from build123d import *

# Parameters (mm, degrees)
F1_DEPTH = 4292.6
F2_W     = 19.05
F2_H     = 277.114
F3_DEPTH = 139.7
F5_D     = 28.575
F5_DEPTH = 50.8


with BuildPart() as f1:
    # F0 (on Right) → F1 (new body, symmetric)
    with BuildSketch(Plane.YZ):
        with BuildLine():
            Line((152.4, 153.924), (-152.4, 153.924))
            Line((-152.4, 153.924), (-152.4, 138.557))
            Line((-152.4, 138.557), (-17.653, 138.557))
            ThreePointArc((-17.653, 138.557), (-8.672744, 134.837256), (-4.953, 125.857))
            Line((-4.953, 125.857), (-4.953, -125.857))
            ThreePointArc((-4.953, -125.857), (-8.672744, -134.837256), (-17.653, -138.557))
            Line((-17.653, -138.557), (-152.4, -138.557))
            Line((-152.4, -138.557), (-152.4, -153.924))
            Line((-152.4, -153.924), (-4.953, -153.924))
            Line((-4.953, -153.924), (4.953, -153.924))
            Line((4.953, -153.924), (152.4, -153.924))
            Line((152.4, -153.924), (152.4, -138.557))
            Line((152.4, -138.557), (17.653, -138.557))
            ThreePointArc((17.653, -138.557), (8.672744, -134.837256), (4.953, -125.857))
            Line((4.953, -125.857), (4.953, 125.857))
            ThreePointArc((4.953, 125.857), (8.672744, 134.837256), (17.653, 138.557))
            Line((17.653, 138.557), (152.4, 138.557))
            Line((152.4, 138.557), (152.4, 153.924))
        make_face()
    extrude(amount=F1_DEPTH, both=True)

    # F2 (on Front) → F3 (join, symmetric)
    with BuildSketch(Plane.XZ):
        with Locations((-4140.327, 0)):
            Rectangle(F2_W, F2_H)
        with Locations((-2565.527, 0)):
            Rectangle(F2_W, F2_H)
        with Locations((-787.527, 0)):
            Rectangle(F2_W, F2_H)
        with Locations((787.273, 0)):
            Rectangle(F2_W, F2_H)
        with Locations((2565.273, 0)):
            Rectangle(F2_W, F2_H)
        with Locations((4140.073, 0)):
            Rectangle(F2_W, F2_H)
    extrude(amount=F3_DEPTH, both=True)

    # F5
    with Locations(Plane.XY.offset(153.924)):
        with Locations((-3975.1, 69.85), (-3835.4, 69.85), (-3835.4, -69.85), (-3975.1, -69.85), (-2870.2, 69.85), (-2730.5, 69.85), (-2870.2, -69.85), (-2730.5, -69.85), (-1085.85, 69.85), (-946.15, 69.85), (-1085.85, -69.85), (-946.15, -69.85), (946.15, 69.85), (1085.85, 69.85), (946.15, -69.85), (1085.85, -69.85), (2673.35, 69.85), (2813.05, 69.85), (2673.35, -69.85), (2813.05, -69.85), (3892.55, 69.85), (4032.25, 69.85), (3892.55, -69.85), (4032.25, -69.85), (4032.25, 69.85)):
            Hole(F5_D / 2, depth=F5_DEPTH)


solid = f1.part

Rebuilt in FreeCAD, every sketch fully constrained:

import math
import FreeCAD as App
import Part
import Sketcher
Q = App.Units.Quantity


def add_polygon(sketch, points):
    """Adds a closed chain of lines whose ends are joined by coincident constraints."""
    first, n = sketch.GeometryCount, len(points)
    for a, b in zip(points, points[1:] + points[:1]):
        sketch.addGeometry(Part.LineSegment(App.Vector(*a, 0), App.Vector(*b, 0)), False)
    for i in range(n):
        sketch.addConstraint(Sketcher.Constraint("Coincident", first + i, 2, first + (i + 1) % n, 1))

doc = App.newDocument("Part")
body = doc.addObject("PartDesign::Body", "Body")

# Sketch on YZ plane
sketch1 = body.newObject("Sketcher::SketchObject", "Sketch")
sketch1.AttachmentSupport = (doc.getObject("YZ_Plane"), [""])
sketch1.MapMode = "FlatFace"
sketch1.addGeometry([
    Part.LineSegment(App.Vector(152, 154, 0), App.Vector(-152, 154, 0)),  # 0
    Part.LineSegment(App.Vector(-152, 154, 0), App.Vector(-152, 139, 0)),  # 1
    Part.LineSegment(App.Vector(-152, 139, 0), App.Vector(-18, 139, 0)),  # 2
    Part.ArcOfCircle(Part.Circle(App.Vector(-18, 126, 0), App.Vector(0, 0, 1), 13), math.radians(0), math.radians(90)),  # 3
    Part.LineSegment(App.Vector(-5, 126, 0), App.Vector(-5, -126, 0)),  # 4
    Part.ArcOfCircle(Part.Circle(App.Vector(-18, -126, 0), App.Vector(0, 0, 1), 13), math.radians(-90), math.radians(0)),  # 5
    Part.LineSegment(App.Vector(-18, -139, 0), App.Vector(-152, -139, 0)),  # 6
    Part.LineSegment(App.Vector(-152, -139, 0), App.Vector(-152, -154, 0)),  # 7
    Part.LineSegment(App.Vector(-152, -154, 0), App.Vector(152, -154, 0)),  # 8
    Part.LineSegment(App.Vector(152, -154, 0), App.Vector(152, -139, 0)),  # 9
    Part.LineSegment(App.Vector(152, -139, 0), App.Vector(18, -139, 0)),  # 10
    Part.ArcOfCircle(Part.Circle(App.Vector(18, -126, 0), App.Vector(0, 0, 1), 13), math.radians(-180), math.radians(-90)),  # 11
    Part.LineSegment(App.Vector(5, -126, 0), App.Vector(5, 126, 0)),  # 12
    Part.ArcOfCircle(Part.Circle(App.Vector(18, 126, 0), App.Vector(0, 0, 1), 13), math.radians(90), math.radians(180)),  # 13
    Part.LineSegment(App.Vector(18, 139, 0), App.Vector(152, 139, 0)),  # 14
    Part.LineSegment(App.Vector(152, 139, 0), App.Vector(152, 154, 0)),  # 15
], False)
sketch1.addConstraint([
    Sketcher.Constraint("Coincident", 0, 2, 1, 1),
    Sketcher.Constraint("Coincident", 1, 2, 2, 1),
    Sketcher.Constraint("Tangent", 2, 2, 3, 2),
    Sketcher.Constraint("Tangent", 3, 1, 4, 1),
    Sketcher.Constraint("Tangent", 4, 2, 5, 2),
    Sketcher.Constraint("Tangent", 5, 1, 6, 1),
    Sketcher.Constraint("Coincident", 6, 2, 7, 1),
    Sketcher.Constraint("Coincident", 7, 2, 8, 1),
    Sketcher.Constraint("Coincident", 8, 2, 9, 1),
    Sketcher.Constraint("Coincident", 9, 2, 10, 1),
    Sketcher.Constraint("Tangent", 10, 2, 11, 2),
    Sketcher.Constraint("Tangent", 11, 1, 12, 1),
    Sketcher.Constraint("Tangent", 12, 2, 13, 2),
    Sketcher.Constraint("Tangent", 13, 1, 14, 1),
    Sketcher.Constraint("Coincident", 14, 2, 15, 1),
    Sketcher.Constraint("Coincident", 15, 2, 0, 1),
    Sketcher.Constraint("Horizontal", 0),
    Sketcher.Constraint("Vertical", 1),
    Sketcher.Constraint("Horizontal", 2),
    Sketcher.Constraint("Vertical", 4),
    Sketcher.Constraint("Horizontal", 6),
    Sketcher.Constraint("Vertical", 7),
    Sketcher.Constraint("Horizontal", 8),
    Sketcher.Constraint("Vertical", 9),
    Sketcher.Constraint("Horizontal", 10),
    Sketcher.Constraint("Vertical", 12),
    Sketcher.Constraint("Horizontal", 14),
    Sketcher.Constraint("Vertical", 15),
    Sketcher.Constraint("Equal", 3, 5),
    Sketcher.Constraint("Equal", 5, 11),
    Sketcher.Constraint("Equal", 11, 13),
    Sketcher.Constraint("Symmetric", 3, 3, 11, 3, -1, 1),
    Sketcher.Constraint("Symmetric", 0, 2, 8, 2, -1, 1),
    Sketcher.Constraint("Symmetric", 6, 2, 14, 2, -1, 1),
    Sketcher.Constraint("Symmetric", 6, 2, 9, 2, -2),
    Sketcher.Constraint("Radius", 3, Q("0.5 in")),
    Sketcher.Constraint("DistanceX", 0, 2, 0, 1, Q("12 in")),
    Sketcher.Constraint("DistanceY", 4, 2, 4, 1, Q("9.91 in")),
    Sketcher.Constraint("DistanceX", 2, 1, 2, 2, Q("5.305 in")),
    Sketcher.Constraint("DistanceY", 1, 2, 1, 1, Q("0.605 in")),
])
pad1 = body.newObject("PartDesign::Pad", "Pad")
pad1.Profile = sketch1
pad1.Length = Q("338 in")
pad1.Midplane = True

# Sketch on XZ plane
sketch2 = body.newObject("Sketcher::SketchObject", "Sketch001")
sketch2.AttachmentSupport = (doc.getObject("XZ_Plane"), [""])
sketch2.MapMode = "FlatFace"
add_polygon(sketch2, [(-4150, 139), (-4150, -139), (-4131, -139), (-4131, 139)])  # lines 0-3
add_polygon(sketch2, [(-2575, 139), (-2575, -139), (-2556, -139), (-2556, 139)])  # lines 4-7
add_polygon(sketch2, [(-797, 139), (-797, -139), (-778, -139), (-778, 139)])  # lines 8-11
add_polygon(sketch2, [(778, 139), (778, -139), (797, -139), (797, 139)])  # lines 12-15
add_polygon(sketch2, [(2556, 139), (2556, -139), (2575, -139), (2575, 139)])  # lines 16-19
add_polygon(sketch2, [(4131, 139), (4131, -139), (4150, -139), (4150, 139)])  # lines 20-23
sketch2.addConstraint([
    Sketcher.Constraint("Vertical", 0),
    Sketcher.Constraint("Horizontal", 1),
    Sketcher.Constraint("Vertical", 2),
    Sketcher.Constraint("Horizontal", 3),
    Sketcher.Constraint("Vertical", 4),
    Sketcher.Constraint("Horizontal", 5),
    Sketcher.Constraint("Vertical", 6),
    Sketcher.Constraint("Horizontal", 7),
    Sketcher.Constraint("Vertical", 8),
    Sketcher.Constraint("Horizontal", 9),
    Sketcher.Constraint("Vertical", 10),
    Sketcher.Constraint("Horizontal", 11),
    Sketcher.Constraint("Vertical", 12),
    Sketcher.Constraint("Horizontal", 13),
    Sketcher.Constraint("Vertical", 14),
    Sketcher.Constraint("Horizontal", 15),
    Sketcher.Constraint("Vertical", 16),
    Sketcher.Constraint("Horizontal", 17),
    Sketcher.Constraint("Vertical", 18),
    Sketcher.Constraint("Horizontal", 19),
    Sketcher.Constraint("Vertical", 20),
    Sketcher.Constraint("Horizontal", 21),
    Sketcher.Constraint("Vertical", 22),
    Sketcher.Constraint("Horizontal", 23),
    Sketcher.Constraint("Horizontal", 1, 2, 4, 2),
    Sketcher.Constraint("Horizontal", 3, 2, 6, 2),
    Sketcher.Constraint("Horizontal", 5, 2, 8, 2),
    Sketcher.Constraint("Horizontal", 7, 2, 10, 2),
    Sketcher.Constraint("Horizontal", 9, 2, 12, 2),
    Sketcher.Constraint("Horizontal", 11, 2, 14, 2),
    Sketcher.Constraint("Horizontal", 13, 2, 16, 2),
    Sketcher.Constraint("Horizontal", 15, 2, 18, 2),
    Sketcher.Constraint("Horizontal", 17, 2, 20, 2),
    Sketcher.Constraint("Horizontal", 19, 2, 22, 2),
    Sketcher.Constraint("Equal", 3, 5),
    Sketcher.Constraint("Equal", 7, 9),
    Sketcher.Constraint("Equal", 11, 13),
    Sketcher.Constraint("Equal", 15, 17),
    Sketcher.Constraint("Equal", 19, 21),
    Sketcher.Constraint("DistanceX", 0, 2, 4, 2, Q("62 in")),
    Sketcher.Constraint("DistanceX", 4, 2, 8, 2, Q("70 in")),
    Sketcher.Constraint("DistanceX", 8, 2, 12, 2, Q("62 in")),
    Sketcher.Constraint("DistanceX", 12, 2, 16, 2, Q("70 in")),
    Sketcher.Constraint("DistanceX", 16, 2, 20, 2, Q("62 in")),
    Sketcher.Constraint("DistanceX", 1, 1, 1, 2, Q("0.75 in")),
    Sketcher.Constraint("DistanceY", 0, 2, 0, 1, Q("10.91 in")),
    Sketcher.Constraint("DistanceX", 0, 2, -1, 1, Q("163.38 in")),
    Sketcher.Constraint("DistanceY", 0, 2, -1, 1, Q("5.455 in")),
])
pad2 = body.newObject("PartDesign::Pad", "Pad001")
pad2.Profile = sketch2
pad2.Length = Q("11 in")
pad2.Midplane = True

# Sketch on XY plane
sketch3 = body.newObject("Sketcher::SketchObject", "Sketch002")
sketch3.AttachmentSupport = (doc.getObject("XY_Plane"), [""])
sketch3.MapMode = "FlatFace"
sketch3.AttachmentOffset = App.Placement(App.Vector(0, 0, 6.06 * 25.4), App.Rotation())
sketch3.addGeometry([
    Part.Circle(App.Vector(-3975, 70, 0), App.Vector(0, 0, 1), 14),  # 0
    Part.Circle(App.Vector(-3835, 70, 0), App.Vector(0, 0, 1), 14),  # 1
    Part.Circle(App.Vector(-3835, -70, 0), App.Vector(0, 0, 1), 14),  # 2
    Part.Circle(App.Vector(-3975, -70, 0), App.Vector(0, 0, 1), 14),  # 3
    Part.Circle(App.Vector(-2870, 70, 0), App.Vector(0, 0, 1), 14),  # 4
    Part.Circle(App.Vector(-2730, 70, 0), App.Vector(0, 0, 1), 14),  # 5
    Part.Circle(App.Vector(-2870, -70, 0), App.Vector(0, 0, 1), 14),  # 6
    Part.Circle(App.Vector(-2730, -70, 0), App.Vector(0, 0, 1), 14),  # 7
    Part.Circle(App.Vector(-1086, 70, 0), App.Vector(0, 0, 1), 14),  # 8
    Part.Circle(App.Vector(-946, 70, 0), App.Vector(0, 0, 1), 14),  # 9
    Part.Circle(App.Vector(-1086, -70, 0), App.Vector(0, 0, 1), 14),  # 10
    Part.Circle(App.Vector(-946, -70, 0), App.Vector(0, 0, 1), 14),  # 11
    Part.Circle(App.Vector(946, 70, 0), App.Vector(0, 0, 1), 14),  # 12
    Part.Circle(App.Vector(1086, 70, 0), App.Vector(0, 0, 1), 14),  # 13
    Part.Circle(App.Vector(946, -70, 0), App.Vector(0, 0, 1), 14),  # 14
    Part.Circle(App.Vector(1086, -70, 0), App.Vector(0, 0, 1), 14),  # 15
    Part.Circle(App.Vector(2673, 70, 0), App.Vector(0, 0, 1), 14),  # 16
    Part.Circle(App.Vector(2813, 70, 0), App.Vector(0, 0, 1), 14),  # 17
    Part.Circle(App.Vector(2673, -70, 0), App.Vector(0, 0, 1), 14),  # 18
    Part.Circle(App.Vector(2813, -70, 0), App.Vector(0, 0, 1), 14),  # 19
    Part.Circle(App.Vector(3893, 70, 0), App.Vector(0, 0, 1), 14),  # 20
    Part.Circle(App.Vector(4032, 70, 0), App.Vector(0, 0, 1), 14),  # 21
    Part.Circle(App.Vector(3893, -70, 0), App.Vector(0, 0, 1), 14),  # 22
    Part.Circle(App.Vector(4032, -70, 0), App.Vector(0, 0, 1), 14),  # 23
    Part.Circle(App.Vector(4032, 70, 0), App.Vector(0, 0, 1), 14),  # 24
], False)
sketch3.addConstraint([
    Sketcher.Constraint("Coincident", 24, 3, 21, 3),
    Sketcher.Constraint("Equal", 0, 1),
    Sketcher.Constraint("Equal", 1, 2),
    Sketcher.Constraint("Equal", 2, 3),
    Sketcher.Constraint("Equal", 3, 4),
    Sketcher.Constraint("Equal", 4, 5),
    Sketcher.Constraint("Equal", 5, 6),
    Sketcher.Constraint("Equal", 6, 7),
    Sketcher.Constraint("Equal", 7, 8),
    Sketcher.Constraint("Equal", 8, 9),
    Sketcher.Constraint("Equal", 9, 10),
    Sketcher.Constraint("Equal", 10, 11),
    Sketcher.Constraint("Equal", 11, 12),
    Sketcher.Constraint("Equal", 12, 13),
    Sketcher.Constraint("Equal", 13, 14),
    Sketcher.Constraint("Equal", 14, 15),
    Sketcher.Constraint("Equal", 15, 16),
    Sketcher.Constraint("Equal", 16, 17),
    Sketcher.Constraint("Equal", 17, 18),
    Sketcher.Constraint("Equal", 18, 19),
    Sketcher.Constraint("Equal", 19, 20),
    Sketcher.Constraint("Equal", 20, 21),
    Sketcher.Constraint("Equal", 21, 22),
    Sketcher.Constraint("Equal", 22, 23),
    Sketcher.Constraint("Equal", 23, 24),
    Sketcher.Constraint("Symmetric", 11, 3, 12, 3, -1, 1),
    Sketcher.Constraint("Symmetric", 10, 3, 13, 3, -1, 1),
    Sketcher.Constraint("Symmetric", 9, 3, 14, 3, -1, 1),
    Sketcher.Constraint("Symmetric", 8, 3, 15, 3, -1, 1),
    Sketcher.Constraint("Symmetric", 9, 3, 12, 3, -2),
    Sketcher.Constraint("Symmetric", 8, 3, 13, 3, -2),
    Sketcher.Constraint("Symmetric", 1, 3, 2, 3, -1),
    Sketcher.Constraint("Symmetric", 0, 3, 3, 3, -1),
    Sketcher.Constraint("Symmetric", 4, 3, 6, 3, -1),
    Sketcher.Constraint("Symmetric", 5, 3, 7, 3, -1),
    Sketcher.Constraint("Symmetric", 16, 3, 18, 3, -1),
    Sketcher.Constraint("Symmetric", 17, 3, 19, 3, -1),
    Sketcher.Constraint("Symmetric", 20, 3, 22, 3, -1),
    Sketcher.Constraint("Symmetric", 21, 3, 23, 3, -1),
    Sketcher.Constraint("Horizontal", 0, 3, 1, 3),
    Sketcher.Constraint("Horizontal", 1, 3, 4, 3),
    Sketcher.Constraint("Horizontal", 4, 3, 5, 3),
    Sketcher.Constraint("Horizontal", 5, 3, 8, 3),
    Sketcher.Constraint("Horizontal", 8, 3, 9, 3),
    Sketcher.Constraint("Horizontal", 13, 3, 16, 3),
    Sketcher.Constraint("Horizontal", 16, 3, 17, 3),
    Sketcher.Constraint("Horizontal", 17, 3, 20, 3),
    Sketcher.Constraint("Horizontal", 20, 3, 21, 3),
    Sketcher.Constraint("Diameter", 0, Q("1.125 in")),
    Sketcher.Constraint("DistanceX", 1, 3, -1, 1, Q("151 in")),
    Sketcher.Constraint("DistanceX", 4, 3, -1, 1, Q("113 in")),
    Sketcher.Constraint("DistanceX", 0, 3, 5, 3, Q("49 in")),
    Sketcher.Constraint("DistanceX", 8, 3, 12, 3, Q("80 in")),
    Sketcher.Constraint("DistanceX", 12, 3, 16, 3, Q("68 in")),
    Sketcher.Constraint("DistanceX", 13, 3, 17, 3, Q("68 in")),
    Sketcher.Constraint("DistanceX", 16, 3, 20, 3, Q("48 in")),
    Sketcher.Constraint("DistanceX", 17, 3, 21, 3, Q("48 in")),
    Sketcher.Constraint("DistanceX", 0, 3, -1, 1, Q("156.5 in")),
    Sketcher.Constraint("DistanceY", 2, 3, 1, 3, Q("5.5 in")),
    Sketcher.Constraint("DistanceX", 8, 3, 9, 3, Q("5.5 in")),
])
doc.recompute()
hole = body.newObject("PartDesign::Hole", "Hole")
hole.Profile = sketch3
hole.ThreadType = "None"
hole.Diameter = Q("1.125 in")
hole.DepthType = "Dimension"
hole.Depth = Q("2 in")
hole.DrillPoint = "Flat"

doc.recompute()
